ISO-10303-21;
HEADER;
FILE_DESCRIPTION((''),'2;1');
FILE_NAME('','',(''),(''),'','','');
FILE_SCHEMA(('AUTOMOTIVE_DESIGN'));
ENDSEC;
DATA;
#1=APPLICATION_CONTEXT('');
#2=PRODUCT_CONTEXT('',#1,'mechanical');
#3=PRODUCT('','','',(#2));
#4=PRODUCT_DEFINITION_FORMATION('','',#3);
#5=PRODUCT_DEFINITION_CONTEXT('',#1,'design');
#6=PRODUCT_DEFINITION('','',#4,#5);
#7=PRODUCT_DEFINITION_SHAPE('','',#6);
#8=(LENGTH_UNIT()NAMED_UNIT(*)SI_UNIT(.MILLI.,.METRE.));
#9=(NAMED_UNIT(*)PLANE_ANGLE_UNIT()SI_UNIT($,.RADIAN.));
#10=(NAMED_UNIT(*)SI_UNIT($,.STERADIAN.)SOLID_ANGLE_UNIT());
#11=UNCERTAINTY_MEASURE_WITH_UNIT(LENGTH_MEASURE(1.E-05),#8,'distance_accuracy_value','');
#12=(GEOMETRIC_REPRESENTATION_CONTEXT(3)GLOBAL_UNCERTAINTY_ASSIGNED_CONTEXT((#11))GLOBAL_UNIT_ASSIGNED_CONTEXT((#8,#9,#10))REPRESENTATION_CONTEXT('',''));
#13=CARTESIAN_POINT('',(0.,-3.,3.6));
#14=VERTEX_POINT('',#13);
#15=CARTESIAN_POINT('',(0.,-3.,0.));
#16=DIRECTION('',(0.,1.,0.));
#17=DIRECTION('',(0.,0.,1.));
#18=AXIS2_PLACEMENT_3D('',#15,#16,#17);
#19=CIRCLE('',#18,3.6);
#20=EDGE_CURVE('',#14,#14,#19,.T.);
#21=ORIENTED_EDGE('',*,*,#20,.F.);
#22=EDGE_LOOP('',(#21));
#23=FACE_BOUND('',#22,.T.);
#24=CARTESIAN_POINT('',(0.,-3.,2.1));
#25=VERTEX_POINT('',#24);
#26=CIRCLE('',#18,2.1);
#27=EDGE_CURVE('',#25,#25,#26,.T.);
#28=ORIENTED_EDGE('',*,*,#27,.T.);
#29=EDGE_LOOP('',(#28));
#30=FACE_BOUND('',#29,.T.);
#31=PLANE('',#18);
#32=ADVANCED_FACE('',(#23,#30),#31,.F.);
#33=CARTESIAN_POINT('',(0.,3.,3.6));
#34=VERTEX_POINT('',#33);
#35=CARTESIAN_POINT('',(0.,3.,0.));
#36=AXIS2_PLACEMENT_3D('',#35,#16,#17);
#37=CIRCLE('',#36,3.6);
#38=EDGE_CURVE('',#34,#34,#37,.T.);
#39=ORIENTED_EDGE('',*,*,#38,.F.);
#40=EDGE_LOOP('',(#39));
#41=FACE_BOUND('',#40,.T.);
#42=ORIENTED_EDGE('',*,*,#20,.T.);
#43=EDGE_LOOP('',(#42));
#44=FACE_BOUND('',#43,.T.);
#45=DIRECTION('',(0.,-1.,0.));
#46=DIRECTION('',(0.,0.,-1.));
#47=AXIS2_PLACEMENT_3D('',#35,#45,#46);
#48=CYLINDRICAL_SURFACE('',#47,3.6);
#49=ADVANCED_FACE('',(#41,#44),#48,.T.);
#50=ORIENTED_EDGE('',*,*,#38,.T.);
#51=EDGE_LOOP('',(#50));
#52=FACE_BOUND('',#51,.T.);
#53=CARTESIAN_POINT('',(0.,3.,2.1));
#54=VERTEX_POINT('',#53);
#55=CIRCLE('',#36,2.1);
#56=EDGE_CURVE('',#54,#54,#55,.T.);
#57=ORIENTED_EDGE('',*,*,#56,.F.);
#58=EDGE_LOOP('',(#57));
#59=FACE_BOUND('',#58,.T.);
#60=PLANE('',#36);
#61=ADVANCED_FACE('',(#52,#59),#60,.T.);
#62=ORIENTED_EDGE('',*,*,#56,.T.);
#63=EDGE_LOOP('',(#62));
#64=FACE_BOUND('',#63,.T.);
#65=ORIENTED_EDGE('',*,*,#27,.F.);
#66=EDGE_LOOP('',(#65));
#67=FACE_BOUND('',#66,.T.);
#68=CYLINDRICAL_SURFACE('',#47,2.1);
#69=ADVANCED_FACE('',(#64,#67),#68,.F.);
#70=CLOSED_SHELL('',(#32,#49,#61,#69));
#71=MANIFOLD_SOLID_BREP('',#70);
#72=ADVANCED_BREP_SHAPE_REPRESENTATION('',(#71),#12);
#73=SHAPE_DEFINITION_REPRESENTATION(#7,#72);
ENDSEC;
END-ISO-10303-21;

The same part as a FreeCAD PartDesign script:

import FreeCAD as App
import Part
import Sketcher
from FreeCAD import Vector

doc = App.newDocument("Part")
body = doc.addObject("PartDesign::Body", "Body")

# Sketch on XZ plane
sketch1 = doc.addObject("Sketcher::SketchObject", "Sketch")
body.addObject(sketch1)
sketch1.AttachmentSupport = (doc.XZ_Plane, [""])
sketch1.MapMode = "FlatFace"
sketch1.addGeometry([
    Part.Circle(Vector(0, 0, 0), Vector(0, 0, 1), 3.6),
    Part.Circle(Vector(0, 0, 0), Vector(0, 0, 1), 2.1),
], False)
sketch1.addConstraint([
    Sketcher.Constraint("Coincident", 0, 3, -1, 1),
    Sketcher.Constraint("Coincident", 1, 3, -1, 1),
    Sketcher.Constraint("Diameter", 0, 7.2),
    Sketcher.Constraint("Diameter", 1, 4.2),
])
pad1 = doc.addObject("PartDesign::Pad", "Pad")
body.addObject(pad1)
pad1.Profile = sketch1
pad1.Length = 6
pad1.Midplane = True

doc.recompute()
